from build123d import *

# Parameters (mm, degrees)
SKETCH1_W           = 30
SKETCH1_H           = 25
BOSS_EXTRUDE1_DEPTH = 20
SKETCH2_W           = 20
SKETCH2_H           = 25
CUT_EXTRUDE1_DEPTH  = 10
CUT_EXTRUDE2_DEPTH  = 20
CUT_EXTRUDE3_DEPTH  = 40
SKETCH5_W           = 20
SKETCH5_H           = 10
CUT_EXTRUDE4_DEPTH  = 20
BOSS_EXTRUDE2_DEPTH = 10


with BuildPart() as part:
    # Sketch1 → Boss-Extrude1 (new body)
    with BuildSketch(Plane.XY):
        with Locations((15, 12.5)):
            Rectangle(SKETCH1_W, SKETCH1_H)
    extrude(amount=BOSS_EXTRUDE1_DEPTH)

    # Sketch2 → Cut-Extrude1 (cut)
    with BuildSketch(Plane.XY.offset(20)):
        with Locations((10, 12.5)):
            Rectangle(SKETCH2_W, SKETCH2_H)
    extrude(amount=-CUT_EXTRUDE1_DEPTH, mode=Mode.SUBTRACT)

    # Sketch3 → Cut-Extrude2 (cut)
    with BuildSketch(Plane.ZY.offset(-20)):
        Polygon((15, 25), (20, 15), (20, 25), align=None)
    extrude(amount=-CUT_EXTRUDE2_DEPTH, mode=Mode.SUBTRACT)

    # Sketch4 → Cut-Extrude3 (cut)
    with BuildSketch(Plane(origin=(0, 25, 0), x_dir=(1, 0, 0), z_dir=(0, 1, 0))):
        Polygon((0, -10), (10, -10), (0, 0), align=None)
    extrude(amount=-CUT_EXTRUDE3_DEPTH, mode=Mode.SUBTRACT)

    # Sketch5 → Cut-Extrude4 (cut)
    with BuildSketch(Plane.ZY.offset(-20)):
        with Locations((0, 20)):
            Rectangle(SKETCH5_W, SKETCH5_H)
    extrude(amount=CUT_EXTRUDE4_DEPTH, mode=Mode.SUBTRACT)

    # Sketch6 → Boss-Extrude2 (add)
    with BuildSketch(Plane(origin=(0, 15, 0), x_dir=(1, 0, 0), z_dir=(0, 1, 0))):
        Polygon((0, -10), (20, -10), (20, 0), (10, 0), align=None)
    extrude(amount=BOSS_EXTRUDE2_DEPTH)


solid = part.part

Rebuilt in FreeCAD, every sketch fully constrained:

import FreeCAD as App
import Part
import Sketcher

V = App.Vector
Q = App.Units.Quantity

doc = App.newDocument("Part")
body = doc.addObject("PartDesign::Body", "Body")

sketch1 = body.newObject("Sketcher::SketchObject", "Sketch")
sketch1.AttachmentSupport = (doc.getObject("XY_Plane"), [""])
sketch1.MapMode = "FlatFace"
sketch1.addGeometry(Part.LineSegment(V(0, 25, 0), V(0, 0, 0)), False)
sketch1.addGeometry(Part.LineSegment(V(0, 0, 0), V(30, 0, 0)), False)
sketch1.addGeometry(Part.LineSegment(V(30, 0, 0), V(30, 25, 0)), False)
sketch1.addGeometry(Part.LineSegment(V(30, 25, 0), V(0, 25, 0)), False)
sketch1.addConstraint(Sketcher.Constraint("Coincident", 0, 2, 1, 1))
sketch1.addConstraint(Sketcher.Constraint("Coincident", 1, 2, 2, 1))
sketch1.addConstraint(Sketcher.Constraint("Coincident", 2, 2, 3, 1))
sketch1.addConstraint(Sketcher.Constraint("Coincident", 3, 2, 0, 1))
sketch1.addConstraint(Sketcher.Constraint("Vertical", 0))
sketch1.addConstraint(Sketcher.Constraint("Horizontal", 1))
sketch1.addConstraint(Sketcher.Constraint("Vertical", 2))
sketch1.addConstraint(Sketcher.Constraint("Horizontal", 3))
sketch1.addConstraint(Sketcher.Constraint("Coincident", 0, 2, -1, 1))
sketch1.addConstraint(Sketcher.Constraint("DistanceX", 1, 1, 1, 2, Q("30 mm")))
sketch1.addConstraint(Sketcher.Constraint("DistanceY", 0, 2, 0, 1, Q("25 mm")))
pad1 = body.newObject("PartDesign::Pad", "Pad")
pad1.Profile = sketch1
pad1.Length = 20

sketch2 = body.newObject("Sketcher::SketchObject", "Sketch001")
sketch2.AttachmentSupport = (doc.getObject("XY_Plane"), [""])
sketch2.MapMode = "FlatFace"
sketch2.AttachmentOffset = App.Placement(V(0, 0, 20), App.Rotation())
sketch2.addGeometry(Part.LineSegment(V(0, 25, 0), V(0, 0, 0)), False)
sketch2.addGeometry(Part.LineSegment(V(0, 0, 0), V(20, 0, 0)), False)
sketch2.addGeometry(Part.LineSegment(V(20, 0, 0), V(20, 25, 0)), False)
sketch2.addGeometry(Part.LineSegment(V(20, 25, 0), V(0, 25, 0)), False)
sketch2.addConstraint(Sketcher.Constraint("Coincident", 0, 2, 1, 1))
sketch2.addConstraint(Sketcher.Constraint("Coincident", 1, 2, 2, 1))
sketch2.addConstraint(Sketcher.Constraint("Coincident", 2, 2, 3, 1))
sketch2.addConstraint(Sketcher.Constraint("Coincident", 3, 2, 0, 1))
sketch2.addConstraint(Sketcher.Constraint("Vertical", 0))
sketch2.addConstraint(Sketcher.Constraint("Horizontal", 1))
sketch2.addConstraint(Sketcher.Constraint("Vertical", 2))
sketch2.addConstraint(Sketcher.Constraint("Horizontal", 3))
sketch2.addConstraint(Sketcher.Constraint("Coincident", 0, 2, -1, 1))
sketch2.addConstraint(Sketcher.Constraint("DistanceX", 1, 1, 1, 2, Q("20 mm")))
sketch2.addConstraint(Sketcher.Constraint("DistanceY", 0, 2, 0, 1, Q("25 mm")))
pocket1 = body.newObject("PartDesign::Pocket", "Pocket")
pocket1.Profile = sketch2
pocket1.Length = 10

sketch3 = body.newObject("Sketcher::SketchObject", "Sketch002")
sketch3.AttachmentSupport = (doc.getObject("YZ_Plane"), [""])
sketch3.MapMode = "FlatFace"
sketch3.AttachmentOffset = App.Placement(V(0, 0, 20), App.Rotation())
sketch3.addGeometry(Part.LineSegment(V(25, 15, 0), V(15, 20, 0)), False)
sketch3.addGeometry(Part.LineSegment(V(15, 20, 0), V(25, 20, 0)), False)
sketch3.addGeometry(Part.LineSegment(V(25, 20, 0), V(25, 15, 0)), False)
sketch3.addConstraint(Sketcher.Constraint("Coincident", 0, 2, 1, 1))
sketch3.addConstraint(Sketcher.Constraint("Coincident", 1, 2, 2, 1))
sketch3.addConstraint(Sketcher.Constraint("Coincident", 2, 2, 0, 1))
sketch3.addConstraint(Sketcher.Constraint("Horizontal", 1))
sketch3.addConstraint(Sketcher.Constraint("Vertical", 2))
sketch3.addConstraint(Sketcher.Constraint("DistanceX", 1, 1, 1, 2, Q("10 mm")))
sketch3.addConstraint(Sketcher.Constraint("DistanceY", 2, 2, 2, 1, Q("5 mm")))
sketch3.addConstraint(Sketcher.Constraint("DistanceX", -1, 1, 0, 2, Q("15 mm")))
sketch3.addConstraint(Sketcher.Constraint("DistanceY", -1, 1, 0, 2, Q("20 mm")))
pocket2 = body.newObject("PartDesign::Pocket", "Pocket001")
pocket2.Profile = sketch3
pocket2.Length = 20
pocket2.Reversed = True

sketch4 = body.newObject("Sketcher::SketchObject", "Sketch003")
sketch4.AttachmentSupport = (doc.getObject("XZ_Plane"), [""])
sketch4.MapMode = "FlatFace"
sketch4.AttachmentOffset = App.Placement(V(0, 0, -25), App.Rotation())
sketch4.addGeometry(Part.LineSegment(V(0, 10, 0), V(10, 10, 0)), False)
sketch4.addGeometry(Part.LineSegment(V(10, 10, 0), V(0, 0, 0)), False)
sketch4.addGeometry(Part.LineSegment(V(0, 0, 0), V(0, 10, 0)), False)
sketch4.addConstraint(Sketcher.Constraint("Coincident", 0, 2, 1, 1))
sketch4.addConstraint(Sketcher.Constraint("Coincident", 1, 2, 2, 1))
sketch4.addConstraint(Sketcher.Constraint("Coincident", 2, 2, 0, 1))
sketch4.addConstraint(Sketcher.Constraint("Horizontal", 0))
sketch4.addConstraint(Sketcher.Constraint("Vertical", 2))
sketch4.addConstraint(Sketcher.Constraint("Coincident", 1, 2, -1, 1))
sketch4.addConstraint(Sketcher.Constraint("Equal", 0, 2))
sketch4.addConstraint(Sketcher.Constraint("DistanceX", 0, 1, 0, 2, Q("10 mm")))
pocket3 = body.newObject("PartDesign::Pocket", "Pocket002")
pocket3.Profile = sketch4
pocket3.Length = 40
pocket3.Reversed = True

sketch5 = body.newObject("Sketcher::SketchObject", "Sketch004")
sketch5.AttachmentSupport = (doc.getObject("YZ_Plane"), [""])
sketch5.MapMode = "FlatFace"
sketch5.AttachmentOffset = App.Placement(V(0, 0, 20), App.Rotation())
sketch5.addGeometry(Part.LineSegment(V(25, -10, 0), V(15, -10, 0)), False)
sketch5.addGeometry(Part.LineSegment(V(15, -10, 0), V(15, 10, 0)), False)
sketch5.addGeometry(Part.LineSegment(V(15, 10, 0), V(25, 10, 0)), False)
sketch5.addGeometry(Part.LineSegment(V(25, 10, 0), V(25, -10, 0)), False)
sketch5.addConstraint(Sketcher.Constraint("Coincident", 0, 2, 1, 1))
sketch5.addConstraint(Sketcher.Constraint("Coincident", 1, 2, 2, 1))
sketch5.addConstraint(Sketcher.Constraint("Coincident", 2, 2, 3, 1))
sketch5.addConstraint(Sketcher.Constraint("Coincident", 3, 2, 0, 1))
sketch5.addConstraint(Sketcher.Constraint("Horizontal", 0))
sketch5.addConstraint(Sketcher.Constraint("Vertical", 1))
sketch5.addConstraint(Sketcher.Constraint("Horizontal", 2))
sketch5.addConstraint(Sketcher.Constraint("Vertical", 3))
sketch5.addConstraint(Sketcher.Constraint("DistanceX", 0, 2, 0, 1, Q("10 mm")))
sketch5.addConstraint(Sketcher.Constraint("DistanceY", 1, 1, 1, 2, Q("20 mm")))
sketch5.addConstraint(Sketcher.Constraint("DistanceX", -1, 1, 0, 2, Q("15 mm")))
sketch5.addConstraint(Sketcher.Constraint("DistanceY", 0, 2, -1, 1, Q("10 mm")))
pocket4 = body.newObject("PartDesign::Pocket", "Pocket003")
pocket4.Profile = sketch5
pocket4.Length = 20

sketch6 = body.newObject("Sketcher::SketchObject", "Sketch005")
sketch6.AttachmentSupport = (doc.getObject("XZ_Plane"), [""])
sketch6.MapMode = "FlatFace"
sketch6.AttachmentOffset = App.Placement(V(0, 0, -15), App.Rotation())
sketch6.addGeometry(Part.LineSegment(V(0, 10, 0), V(20, 10, 0)), False)
sketch6.addGeometry(Part.LineSegment(V(20, 10, 0), V(20, 0, 0)), False)
sketch6.addGeometry(Part.LineSegment(V(20, 0, 0), V(10, 0, 0)), False)
sketch6.addGeometry(Part.LineSegment(V(10, 0, 0), V(0, 10, 0)), False)
sketch6.addConstraint(Sketcher.Constraint("Coincident", 0, 2, 1, 1))
sketch6.addConstraint(Sketcher.Constraint("Coincident", 1, 2, 2, 1))
sketch6.addConstraint(Sketcher.Constraint("Coincident", 2, 2, 3, 1))
sketch6.addConstraint(Sketcher.Constraint("Coincident", 3, 2, 0, 1))
sketch6.addConstraint(Sketcher.Constraint("Horizontal", 0))
sketch6.addConstraint(Sketcher.Constraint("Vertical", 1))
sketch6.addConstraint(Sketcher.Constraint("Horizontal", 2))
sketch6.addConstraint(Sketcher.Constraint("PointOnObject", 1, 2, -1))
sketch6.addConstraint(Sketcher.Constraint("PointOnObject", 3, 2, -2))
sketch6.addConstraint(Sketcher.Constraint("Equal", 2, 1))
sketch6.addConstraint(Sketcher.Constraint("DistanceX", 0, 1, 0, 2, Q("20 mm")))
sketch6.addConstraint(Sketcher.Constraint("DistanceX", 2, 2, 2, 1, Q("10 mm")))
pad2 = body.newObject("PartDesign::Pad", "Pad001")
pad2.Profile = sketch6
pad2.Length = 10
pad2.Reversed = True

doc.recompute()
